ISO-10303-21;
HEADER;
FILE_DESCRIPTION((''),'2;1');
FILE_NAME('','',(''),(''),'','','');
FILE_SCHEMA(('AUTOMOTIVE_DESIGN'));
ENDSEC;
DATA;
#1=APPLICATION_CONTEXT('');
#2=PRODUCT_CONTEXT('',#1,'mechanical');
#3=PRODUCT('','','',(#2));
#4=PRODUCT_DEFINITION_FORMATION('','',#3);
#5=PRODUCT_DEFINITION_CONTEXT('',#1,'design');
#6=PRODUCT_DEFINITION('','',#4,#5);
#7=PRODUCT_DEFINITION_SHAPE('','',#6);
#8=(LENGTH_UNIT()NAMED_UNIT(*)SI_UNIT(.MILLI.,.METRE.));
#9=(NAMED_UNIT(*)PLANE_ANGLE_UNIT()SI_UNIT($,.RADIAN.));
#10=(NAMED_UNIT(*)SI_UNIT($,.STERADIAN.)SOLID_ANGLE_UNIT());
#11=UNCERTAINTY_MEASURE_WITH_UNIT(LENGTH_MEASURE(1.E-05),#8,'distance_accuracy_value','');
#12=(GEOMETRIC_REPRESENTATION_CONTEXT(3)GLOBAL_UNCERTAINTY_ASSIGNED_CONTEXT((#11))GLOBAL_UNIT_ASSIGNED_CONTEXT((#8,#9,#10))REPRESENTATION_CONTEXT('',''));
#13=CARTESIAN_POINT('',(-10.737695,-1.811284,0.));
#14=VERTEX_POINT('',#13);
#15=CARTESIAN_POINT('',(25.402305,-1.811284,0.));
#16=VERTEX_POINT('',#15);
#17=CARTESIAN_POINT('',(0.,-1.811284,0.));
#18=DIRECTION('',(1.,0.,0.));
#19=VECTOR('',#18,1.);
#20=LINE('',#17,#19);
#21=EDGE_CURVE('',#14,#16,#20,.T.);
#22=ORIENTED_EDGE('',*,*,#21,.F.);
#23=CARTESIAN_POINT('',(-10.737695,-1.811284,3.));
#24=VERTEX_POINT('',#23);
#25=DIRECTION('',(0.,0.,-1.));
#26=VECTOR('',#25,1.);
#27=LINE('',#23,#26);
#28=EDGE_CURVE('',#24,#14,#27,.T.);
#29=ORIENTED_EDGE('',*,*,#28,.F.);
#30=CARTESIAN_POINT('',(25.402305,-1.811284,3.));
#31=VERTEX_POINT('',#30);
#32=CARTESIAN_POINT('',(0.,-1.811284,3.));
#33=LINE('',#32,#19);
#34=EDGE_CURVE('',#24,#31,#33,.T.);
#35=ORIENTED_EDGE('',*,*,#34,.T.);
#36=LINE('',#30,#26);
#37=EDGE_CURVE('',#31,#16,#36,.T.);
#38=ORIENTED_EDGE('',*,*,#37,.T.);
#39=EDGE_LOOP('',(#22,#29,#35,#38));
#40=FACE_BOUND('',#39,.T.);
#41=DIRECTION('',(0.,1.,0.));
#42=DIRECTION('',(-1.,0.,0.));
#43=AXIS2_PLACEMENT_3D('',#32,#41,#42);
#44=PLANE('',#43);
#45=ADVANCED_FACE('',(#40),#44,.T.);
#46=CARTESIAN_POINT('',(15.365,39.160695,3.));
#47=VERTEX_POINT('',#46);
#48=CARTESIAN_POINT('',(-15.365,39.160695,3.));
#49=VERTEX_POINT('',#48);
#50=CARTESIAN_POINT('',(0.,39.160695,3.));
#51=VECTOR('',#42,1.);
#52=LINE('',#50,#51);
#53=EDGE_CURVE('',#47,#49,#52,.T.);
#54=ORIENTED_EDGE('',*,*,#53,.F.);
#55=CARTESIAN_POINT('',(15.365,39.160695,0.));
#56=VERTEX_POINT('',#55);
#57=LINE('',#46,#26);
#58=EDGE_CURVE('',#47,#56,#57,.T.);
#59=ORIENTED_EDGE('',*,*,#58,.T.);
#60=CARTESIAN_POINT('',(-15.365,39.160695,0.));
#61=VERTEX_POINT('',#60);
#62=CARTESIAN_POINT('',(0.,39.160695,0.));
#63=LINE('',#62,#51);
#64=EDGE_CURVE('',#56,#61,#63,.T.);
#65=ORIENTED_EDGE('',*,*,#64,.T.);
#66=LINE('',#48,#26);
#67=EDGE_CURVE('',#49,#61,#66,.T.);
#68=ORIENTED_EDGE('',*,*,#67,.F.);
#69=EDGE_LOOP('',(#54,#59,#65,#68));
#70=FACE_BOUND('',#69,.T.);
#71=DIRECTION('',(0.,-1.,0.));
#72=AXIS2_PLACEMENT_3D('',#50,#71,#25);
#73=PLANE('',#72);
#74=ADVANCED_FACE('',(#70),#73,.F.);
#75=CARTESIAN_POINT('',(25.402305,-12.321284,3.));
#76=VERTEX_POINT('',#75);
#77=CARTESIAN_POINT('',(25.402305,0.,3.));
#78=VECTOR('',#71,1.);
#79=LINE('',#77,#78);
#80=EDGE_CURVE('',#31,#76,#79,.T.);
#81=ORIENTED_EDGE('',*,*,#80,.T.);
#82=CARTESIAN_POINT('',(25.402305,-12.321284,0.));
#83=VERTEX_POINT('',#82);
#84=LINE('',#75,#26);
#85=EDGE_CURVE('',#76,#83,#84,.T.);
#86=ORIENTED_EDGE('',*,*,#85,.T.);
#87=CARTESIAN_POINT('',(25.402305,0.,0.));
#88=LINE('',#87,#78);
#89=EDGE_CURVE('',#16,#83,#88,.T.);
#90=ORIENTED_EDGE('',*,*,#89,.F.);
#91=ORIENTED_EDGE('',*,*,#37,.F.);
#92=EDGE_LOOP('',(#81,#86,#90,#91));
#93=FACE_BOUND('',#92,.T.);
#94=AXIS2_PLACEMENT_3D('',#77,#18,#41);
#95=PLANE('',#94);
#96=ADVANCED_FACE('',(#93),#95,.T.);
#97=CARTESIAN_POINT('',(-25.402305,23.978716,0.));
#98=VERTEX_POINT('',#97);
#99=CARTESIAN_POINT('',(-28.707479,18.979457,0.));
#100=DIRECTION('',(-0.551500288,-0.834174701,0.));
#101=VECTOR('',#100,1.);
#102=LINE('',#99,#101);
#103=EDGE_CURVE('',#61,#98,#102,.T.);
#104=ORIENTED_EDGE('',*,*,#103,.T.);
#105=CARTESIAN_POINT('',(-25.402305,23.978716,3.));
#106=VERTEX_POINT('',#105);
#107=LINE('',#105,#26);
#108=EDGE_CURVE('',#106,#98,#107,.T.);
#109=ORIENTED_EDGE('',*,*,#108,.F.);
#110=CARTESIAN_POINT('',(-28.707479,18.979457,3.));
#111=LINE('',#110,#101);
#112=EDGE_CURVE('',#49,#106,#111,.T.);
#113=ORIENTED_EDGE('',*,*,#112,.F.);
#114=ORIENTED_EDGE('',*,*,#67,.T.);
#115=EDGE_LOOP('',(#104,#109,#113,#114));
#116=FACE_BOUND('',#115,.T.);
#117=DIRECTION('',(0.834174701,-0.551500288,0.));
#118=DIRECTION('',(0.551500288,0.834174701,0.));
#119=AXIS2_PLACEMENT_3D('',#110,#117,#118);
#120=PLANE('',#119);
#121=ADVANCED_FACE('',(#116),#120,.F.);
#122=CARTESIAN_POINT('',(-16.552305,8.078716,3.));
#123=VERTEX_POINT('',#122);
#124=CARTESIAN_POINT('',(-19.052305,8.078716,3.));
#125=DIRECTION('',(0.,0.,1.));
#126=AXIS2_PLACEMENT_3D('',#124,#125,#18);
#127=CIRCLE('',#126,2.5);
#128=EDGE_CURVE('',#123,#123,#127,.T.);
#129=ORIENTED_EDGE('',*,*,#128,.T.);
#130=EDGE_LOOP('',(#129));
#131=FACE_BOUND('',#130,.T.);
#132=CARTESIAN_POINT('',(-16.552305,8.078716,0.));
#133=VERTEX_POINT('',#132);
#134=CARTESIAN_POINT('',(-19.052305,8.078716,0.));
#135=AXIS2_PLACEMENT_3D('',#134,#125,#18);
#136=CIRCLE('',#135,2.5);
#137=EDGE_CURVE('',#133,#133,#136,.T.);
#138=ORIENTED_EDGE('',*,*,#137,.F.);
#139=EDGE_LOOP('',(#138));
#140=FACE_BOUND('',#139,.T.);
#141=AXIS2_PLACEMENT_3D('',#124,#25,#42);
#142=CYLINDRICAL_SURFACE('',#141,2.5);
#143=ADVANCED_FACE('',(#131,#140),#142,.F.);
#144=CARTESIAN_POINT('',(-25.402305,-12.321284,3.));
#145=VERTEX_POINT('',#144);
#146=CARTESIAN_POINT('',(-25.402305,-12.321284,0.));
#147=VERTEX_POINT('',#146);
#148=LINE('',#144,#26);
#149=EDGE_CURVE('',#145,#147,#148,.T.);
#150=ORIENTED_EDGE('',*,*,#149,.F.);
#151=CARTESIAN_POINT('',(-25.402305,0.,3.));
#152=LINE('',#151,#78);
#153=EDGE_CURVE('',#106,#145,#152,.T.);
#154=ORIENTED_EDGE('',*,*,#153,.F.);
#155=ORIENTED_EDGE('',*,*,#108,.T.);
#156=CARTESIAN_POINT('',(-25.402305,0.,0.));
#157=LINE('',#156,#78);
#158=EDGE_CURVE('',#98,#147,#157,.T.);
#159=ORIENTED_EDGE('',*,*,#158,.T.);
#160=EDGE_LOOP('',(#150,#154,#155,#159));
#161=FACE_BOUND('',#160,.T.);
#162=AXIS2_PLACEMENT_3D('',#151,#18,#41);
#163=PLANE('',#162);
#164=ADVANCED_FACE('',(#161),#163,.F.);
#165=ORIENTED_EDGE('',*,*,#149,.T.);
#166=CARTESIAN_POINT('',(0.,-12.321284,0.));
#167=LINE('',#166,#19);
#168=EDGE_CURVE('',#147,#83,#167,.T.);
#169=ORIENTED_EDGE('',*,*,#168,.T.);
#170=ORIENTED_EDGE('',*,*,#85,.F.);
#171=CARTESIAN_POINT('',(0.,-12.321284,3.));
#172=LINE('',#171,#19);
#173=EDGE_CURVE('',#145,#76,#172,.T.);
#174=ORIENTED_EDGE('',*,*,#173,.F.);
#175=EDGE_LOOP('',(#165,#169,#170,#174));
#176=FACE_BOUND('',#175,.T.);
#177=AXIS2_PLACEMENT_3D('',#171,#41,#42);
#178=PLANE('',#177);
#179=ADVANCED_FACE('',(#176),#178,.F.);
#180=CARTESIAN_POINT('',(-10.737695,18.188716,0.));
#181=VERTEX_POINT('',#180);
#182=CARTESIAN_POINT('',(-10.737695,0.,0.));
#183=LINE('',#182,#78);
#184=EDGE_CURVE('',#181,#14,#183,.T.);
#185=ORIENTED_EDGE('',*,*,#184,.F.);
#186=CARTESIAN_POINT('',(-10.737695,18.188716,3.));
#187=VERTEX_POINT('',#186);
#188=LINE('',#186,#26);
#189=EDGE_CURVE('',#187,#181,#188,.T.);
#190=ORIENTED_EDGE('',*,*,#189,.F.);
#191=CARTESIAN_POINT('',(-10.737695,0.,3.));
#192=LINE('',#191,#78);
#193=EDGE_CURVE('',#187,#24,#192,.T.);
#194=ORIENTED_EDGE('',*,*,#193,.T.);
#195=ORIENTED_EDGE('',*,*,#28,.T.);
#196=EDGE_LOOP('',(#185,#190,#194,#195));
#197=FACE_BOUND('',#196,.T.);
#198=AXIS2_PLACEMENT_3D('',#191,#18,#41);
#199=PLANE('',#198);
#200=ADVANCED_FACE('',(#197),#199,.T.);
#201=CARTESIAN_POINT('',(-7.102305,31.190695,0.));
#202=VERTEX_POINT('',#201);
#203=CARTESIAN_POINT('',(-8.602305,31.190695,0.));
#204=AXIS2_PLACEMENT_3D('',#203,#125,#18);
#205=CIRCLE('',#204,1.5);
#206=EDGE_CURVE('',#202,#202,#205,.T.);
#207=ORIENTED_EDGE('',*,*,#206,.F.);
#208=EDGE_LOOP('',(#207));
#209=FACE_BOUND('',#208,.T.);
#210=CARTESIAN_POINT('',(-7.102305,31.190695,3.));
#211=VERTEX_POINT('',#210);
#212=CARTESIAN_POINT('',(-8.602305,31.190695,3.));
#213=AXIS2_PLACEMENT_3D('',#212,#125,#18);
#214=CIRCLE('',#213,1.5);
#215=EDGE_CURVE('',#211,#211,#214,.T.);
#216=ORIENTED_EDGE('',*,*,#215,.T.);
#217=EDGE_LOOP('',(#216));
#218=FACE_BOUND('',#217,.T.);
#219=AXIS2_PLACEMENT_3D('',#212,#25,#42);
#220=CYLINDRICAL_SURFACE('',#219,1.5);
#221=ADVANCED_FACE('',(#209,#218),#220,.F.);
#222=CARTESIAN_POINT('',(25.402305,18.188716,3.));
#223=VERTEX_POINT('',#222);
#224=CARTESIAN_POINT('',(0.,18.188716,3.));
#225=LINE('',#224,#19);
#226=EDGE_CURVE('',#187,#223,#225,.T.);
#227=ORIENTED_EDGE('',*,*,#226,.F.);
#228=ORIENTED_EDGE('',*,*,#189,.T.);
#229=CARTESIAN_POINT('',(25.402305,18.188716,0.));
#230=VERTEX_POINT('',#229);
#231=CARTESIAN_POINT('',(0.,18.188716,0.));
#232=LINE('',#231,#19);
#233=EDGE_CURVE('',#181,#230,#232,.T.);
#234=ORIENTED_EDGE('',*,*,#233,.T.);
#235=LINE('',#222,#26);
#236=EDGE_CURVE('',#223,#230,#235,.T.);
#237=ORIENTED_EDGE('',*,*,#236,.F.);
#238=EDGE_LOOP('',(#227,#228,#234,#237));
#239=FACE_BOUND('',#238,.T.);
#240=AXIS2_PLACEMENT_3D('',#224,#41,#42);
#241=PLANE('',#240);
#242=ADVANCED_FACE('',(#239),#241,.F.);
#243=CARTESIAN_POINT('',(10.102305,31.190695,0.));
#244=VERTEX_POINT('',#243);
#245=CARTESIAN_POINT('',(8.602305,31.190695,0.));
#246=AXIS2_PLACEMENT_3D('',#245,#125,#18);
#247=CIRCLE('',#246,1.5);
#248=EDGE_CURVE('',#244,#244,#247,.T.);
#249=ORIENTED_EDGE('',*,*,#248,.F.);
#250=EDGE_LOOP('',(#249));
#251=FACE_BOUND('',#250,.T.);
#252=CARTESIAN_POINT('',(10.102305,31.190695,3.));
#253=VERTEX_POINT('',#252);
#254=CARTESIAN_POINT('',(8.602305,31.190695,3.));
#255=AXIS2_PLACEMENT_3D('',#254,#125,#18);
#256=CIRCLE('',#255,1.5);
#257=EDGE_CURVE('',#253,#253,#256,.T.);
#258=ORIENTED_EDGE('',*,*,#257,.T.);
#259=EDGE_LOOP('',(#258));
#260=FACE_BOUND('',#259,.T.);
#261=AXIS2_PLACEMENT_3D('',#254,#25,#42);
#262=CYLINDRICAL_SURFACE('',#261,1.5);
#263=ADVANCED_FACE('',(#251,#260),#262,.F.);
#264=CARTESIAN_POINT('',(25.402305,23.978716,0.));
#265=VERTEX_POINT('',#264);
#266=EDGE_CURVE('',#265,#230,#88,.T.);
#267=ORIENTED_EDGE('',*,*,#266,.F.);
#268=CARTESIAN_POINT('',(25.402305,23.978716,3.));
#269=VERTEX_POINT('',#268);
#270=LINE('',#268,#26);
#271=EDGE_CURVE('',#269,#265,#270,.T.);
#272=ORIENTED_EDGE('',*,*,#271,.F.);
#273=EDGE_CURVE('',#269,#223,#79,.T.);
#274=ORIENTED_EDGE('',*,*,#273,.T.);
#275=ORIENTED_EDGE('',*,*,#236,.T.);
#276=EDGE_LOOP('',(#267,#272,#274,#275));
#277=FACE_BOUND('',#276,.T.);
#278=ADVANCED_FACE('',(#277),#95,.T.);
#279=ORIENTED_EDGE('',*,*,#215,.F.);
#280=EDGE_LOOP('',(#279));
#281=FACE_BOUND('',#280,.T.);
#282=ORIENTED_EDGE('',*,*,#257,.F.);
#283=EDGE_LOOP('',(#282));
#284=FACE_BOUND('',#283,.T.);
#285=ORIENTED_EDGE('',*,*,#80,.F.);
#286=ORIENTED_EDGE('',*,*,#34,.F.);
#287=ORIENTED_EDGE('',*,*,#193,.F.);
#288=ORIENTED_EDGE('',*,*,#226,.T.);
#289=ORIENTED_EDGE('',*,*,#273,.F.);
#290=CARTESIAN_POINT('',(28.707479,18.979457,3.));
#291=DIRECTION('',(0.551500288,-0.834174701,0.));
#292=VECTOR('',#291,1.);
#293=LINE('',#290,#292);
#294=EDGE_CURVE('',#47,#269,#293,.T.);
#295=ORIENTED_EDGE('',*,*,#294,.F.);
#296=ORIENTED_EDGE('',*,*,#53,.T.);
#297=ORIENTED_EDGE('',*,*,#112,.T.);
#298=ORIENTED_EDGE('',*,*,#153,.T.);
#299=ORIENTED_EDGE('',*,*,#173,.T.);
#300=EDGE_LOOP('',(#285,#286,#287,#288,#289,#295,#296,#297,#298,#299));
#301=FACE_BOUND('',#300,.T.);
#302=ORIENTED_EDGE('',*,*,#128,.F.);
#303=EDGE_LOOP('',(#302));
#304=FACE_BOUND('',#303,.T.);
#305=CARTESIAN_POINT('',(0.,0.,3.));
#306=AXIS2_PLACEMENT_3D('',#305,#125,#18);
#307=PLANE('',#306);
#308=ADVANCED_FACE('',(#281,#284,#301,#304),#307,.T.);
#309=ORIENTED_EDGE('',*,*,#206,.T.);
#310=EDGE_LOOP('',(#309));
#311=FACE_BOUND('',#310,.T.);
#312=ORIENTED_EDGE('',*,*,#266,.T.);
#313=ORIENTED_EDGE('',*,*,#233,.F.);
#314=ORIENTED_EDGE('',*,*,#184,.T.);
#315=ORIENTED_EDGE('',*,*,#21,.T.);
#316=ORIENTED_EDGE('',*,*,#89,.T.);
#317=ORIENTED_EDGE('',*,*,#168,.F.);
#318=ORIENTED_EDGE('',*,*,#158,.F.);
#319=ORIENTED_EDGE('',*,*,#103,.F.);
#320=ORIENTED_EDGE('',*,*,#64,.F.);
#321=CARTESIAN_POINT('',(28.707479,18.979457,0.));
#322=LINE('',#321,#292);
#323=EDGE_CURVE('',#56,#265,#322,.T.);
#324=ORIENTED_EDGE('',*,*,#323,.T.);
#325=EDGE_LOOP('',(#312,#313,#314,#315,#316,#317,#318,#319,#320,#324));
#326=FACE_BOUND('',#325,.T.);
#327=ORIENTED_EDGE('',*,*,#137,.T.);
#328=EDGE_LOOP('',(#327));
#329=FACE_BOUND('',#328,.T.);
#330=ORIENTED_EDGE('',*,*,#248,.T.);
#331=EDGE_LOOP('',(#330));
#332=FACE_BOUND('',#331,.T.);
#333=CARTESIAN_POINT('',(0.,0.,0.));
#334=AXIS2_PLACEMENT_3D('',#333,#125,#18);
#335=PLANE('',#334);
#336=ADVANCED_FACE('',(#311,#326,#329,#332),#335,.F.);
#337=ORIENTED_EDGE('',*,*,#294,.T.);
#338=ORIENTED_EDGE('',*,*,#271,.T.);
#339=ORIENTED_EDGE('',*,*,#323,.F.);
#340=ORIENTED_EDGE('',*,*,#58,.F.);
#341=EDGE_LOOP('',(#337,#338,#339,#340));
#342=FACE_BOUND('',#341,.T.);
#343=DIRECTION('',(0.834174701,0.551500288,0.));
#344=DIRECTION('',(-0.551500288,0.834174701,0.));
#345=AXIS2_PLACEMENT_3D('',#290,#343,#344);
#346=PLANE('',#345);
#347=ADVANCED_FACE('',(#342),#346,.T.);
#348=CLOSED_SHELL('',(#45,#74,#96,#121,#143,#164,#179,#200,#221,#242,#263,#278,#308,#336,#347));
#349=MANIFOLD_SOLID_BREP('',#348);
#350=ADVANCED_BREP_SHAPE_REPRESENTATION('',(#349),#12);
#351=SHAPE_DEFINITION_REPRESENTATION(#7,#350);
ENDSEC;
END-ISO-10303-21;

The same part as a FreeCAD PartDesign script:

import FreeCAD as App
import Part
import Sketcher

V = App.Vector
Q = App.Units.Quantity


def add_polygon(sketch, points):
    """Adds a closed chain of lines whose ends are joined by coincident constraints."""
    first, n = sketch.GeometryCount, len(points)
    for a, b in zip(points, points[1:] + points[:1]):
        sketch.addGeometry(Part.LineSegment(App.Vector(*a, 0), App.Vector(*b, 0)), False)
    for i in range(n):
        sketch.addConstraint(Sketcher.Constraint("Coincident", first + i, 2, first + (i + 1) % n, 1))

doc = App.newDocument("Part")
body = doc.addObject("PartDesign::Body", "Body")

# Sketch on XY plane
sketch1 = body.newObject("Sketcher::SketchObject", "Sketch")
sketch1.AttachmentSupport = (doc.getObject("XY_Plane"), [""])
sketch1.MapMode = "FlatFace"
add_polygon(sketch1, [(-25.402305, -12.321284), (25.402305, -12.321284), (25.402305, -1.811284), (-10.737695, -1.811284), (-10.737695, 18.188716), (25.402305, 18.188716), (25.402305, 23.978716), (15.365, 39.160695), (-15.365, 39.160695), (-25.402305, 23.978716)])  # lines 0-9
sketch1.addGeometry(Part.Circle(V(-19.052305, 8.078716, 0), V(0, 0, 1), 2.5), False)  # 10
sketch1.addGeometry(Part.Circle(V(-8.602305, 31.190695, 0), V(0, 0, 1), 1.5), False)  # 11
sketch1.addGeometry(Part.Circle(V(8.602305, 31.190695, 0), V(0, 0, 1), 1.5), False)  # 12
sketch1.addConstraint([
    Sketcher.Constraint("Horizontal", 0),
    Sketcher.Constraint("Vertical", 1),
    Sketcher.Constraint("Horizontal", 2),
    Sketcher.Constraint("Vertical", 3),
    Sketcher.Constraint("Horizontal", 4),
    Sketcher.Constraint("Vertical", 5),
    Sketcher.Constraint("Horizontal", 7),
    Sketcher.Constraint("Vertical", 9),
    Sketcher.Constraint("Equal", 11, 12),
    Sketcher.Constraint("Symmetric", 11, 3, 12, 3, -2),
    Sketcher.Constraint("Symmetric", 5, 2, 8, 2, -2),
    Sketcher.Constraint("Vertical", 1, 2, 4, 2),
    Sketcher.Constraint("Equal", 6, 8),
    Sketcher.Constraint("Diameter", 10, 5.0),
    Sketcher.Constraint("Diameter", 11, 3.0),
    Sketcher.Constraint("DistanceY", 3, 1, 3, 2, 20.0),
    Sketcher.Constraint("DistanceY", 9, 2, 9, 1, 36.3),
    Sketcher.Constraint("Distance", 6, 18.2),
    Sketcher.Constraint("DistanceX", 2, 2, 2, 1, 36.14),
    Sketcher.Constraint("DistanceX", 7, 2, 7, 1, 30.73),
    Sketcher.Constraint("DistanceY", 1, 1, 1, 2, 10.51),
    Sketcher.Constraint("Angle", 6, Q("123.47 deg")),
    Sketcher.Constraint("DistanceX", 12, 3, 0, 2, 16.8),
    Sketcher.Constraint("DistanceY", 0, 2, 10, 3, 20.4),
    Sketcher.Constraint("DistanceX", 10, 3, 11, 3, 10.45),
    Sketcher.Constraint("DistanceY", 12, 3, 6, 2, 7.97),
    Sketcher.Constraint("DistanceY", -1, 1, 10, 3, 8.078716),
])
pad1 = body.newObject("PartDesign::Pad", "Pad")
pad1.Profile = sketch1
pad1.Length = 3

doc.recompute()
